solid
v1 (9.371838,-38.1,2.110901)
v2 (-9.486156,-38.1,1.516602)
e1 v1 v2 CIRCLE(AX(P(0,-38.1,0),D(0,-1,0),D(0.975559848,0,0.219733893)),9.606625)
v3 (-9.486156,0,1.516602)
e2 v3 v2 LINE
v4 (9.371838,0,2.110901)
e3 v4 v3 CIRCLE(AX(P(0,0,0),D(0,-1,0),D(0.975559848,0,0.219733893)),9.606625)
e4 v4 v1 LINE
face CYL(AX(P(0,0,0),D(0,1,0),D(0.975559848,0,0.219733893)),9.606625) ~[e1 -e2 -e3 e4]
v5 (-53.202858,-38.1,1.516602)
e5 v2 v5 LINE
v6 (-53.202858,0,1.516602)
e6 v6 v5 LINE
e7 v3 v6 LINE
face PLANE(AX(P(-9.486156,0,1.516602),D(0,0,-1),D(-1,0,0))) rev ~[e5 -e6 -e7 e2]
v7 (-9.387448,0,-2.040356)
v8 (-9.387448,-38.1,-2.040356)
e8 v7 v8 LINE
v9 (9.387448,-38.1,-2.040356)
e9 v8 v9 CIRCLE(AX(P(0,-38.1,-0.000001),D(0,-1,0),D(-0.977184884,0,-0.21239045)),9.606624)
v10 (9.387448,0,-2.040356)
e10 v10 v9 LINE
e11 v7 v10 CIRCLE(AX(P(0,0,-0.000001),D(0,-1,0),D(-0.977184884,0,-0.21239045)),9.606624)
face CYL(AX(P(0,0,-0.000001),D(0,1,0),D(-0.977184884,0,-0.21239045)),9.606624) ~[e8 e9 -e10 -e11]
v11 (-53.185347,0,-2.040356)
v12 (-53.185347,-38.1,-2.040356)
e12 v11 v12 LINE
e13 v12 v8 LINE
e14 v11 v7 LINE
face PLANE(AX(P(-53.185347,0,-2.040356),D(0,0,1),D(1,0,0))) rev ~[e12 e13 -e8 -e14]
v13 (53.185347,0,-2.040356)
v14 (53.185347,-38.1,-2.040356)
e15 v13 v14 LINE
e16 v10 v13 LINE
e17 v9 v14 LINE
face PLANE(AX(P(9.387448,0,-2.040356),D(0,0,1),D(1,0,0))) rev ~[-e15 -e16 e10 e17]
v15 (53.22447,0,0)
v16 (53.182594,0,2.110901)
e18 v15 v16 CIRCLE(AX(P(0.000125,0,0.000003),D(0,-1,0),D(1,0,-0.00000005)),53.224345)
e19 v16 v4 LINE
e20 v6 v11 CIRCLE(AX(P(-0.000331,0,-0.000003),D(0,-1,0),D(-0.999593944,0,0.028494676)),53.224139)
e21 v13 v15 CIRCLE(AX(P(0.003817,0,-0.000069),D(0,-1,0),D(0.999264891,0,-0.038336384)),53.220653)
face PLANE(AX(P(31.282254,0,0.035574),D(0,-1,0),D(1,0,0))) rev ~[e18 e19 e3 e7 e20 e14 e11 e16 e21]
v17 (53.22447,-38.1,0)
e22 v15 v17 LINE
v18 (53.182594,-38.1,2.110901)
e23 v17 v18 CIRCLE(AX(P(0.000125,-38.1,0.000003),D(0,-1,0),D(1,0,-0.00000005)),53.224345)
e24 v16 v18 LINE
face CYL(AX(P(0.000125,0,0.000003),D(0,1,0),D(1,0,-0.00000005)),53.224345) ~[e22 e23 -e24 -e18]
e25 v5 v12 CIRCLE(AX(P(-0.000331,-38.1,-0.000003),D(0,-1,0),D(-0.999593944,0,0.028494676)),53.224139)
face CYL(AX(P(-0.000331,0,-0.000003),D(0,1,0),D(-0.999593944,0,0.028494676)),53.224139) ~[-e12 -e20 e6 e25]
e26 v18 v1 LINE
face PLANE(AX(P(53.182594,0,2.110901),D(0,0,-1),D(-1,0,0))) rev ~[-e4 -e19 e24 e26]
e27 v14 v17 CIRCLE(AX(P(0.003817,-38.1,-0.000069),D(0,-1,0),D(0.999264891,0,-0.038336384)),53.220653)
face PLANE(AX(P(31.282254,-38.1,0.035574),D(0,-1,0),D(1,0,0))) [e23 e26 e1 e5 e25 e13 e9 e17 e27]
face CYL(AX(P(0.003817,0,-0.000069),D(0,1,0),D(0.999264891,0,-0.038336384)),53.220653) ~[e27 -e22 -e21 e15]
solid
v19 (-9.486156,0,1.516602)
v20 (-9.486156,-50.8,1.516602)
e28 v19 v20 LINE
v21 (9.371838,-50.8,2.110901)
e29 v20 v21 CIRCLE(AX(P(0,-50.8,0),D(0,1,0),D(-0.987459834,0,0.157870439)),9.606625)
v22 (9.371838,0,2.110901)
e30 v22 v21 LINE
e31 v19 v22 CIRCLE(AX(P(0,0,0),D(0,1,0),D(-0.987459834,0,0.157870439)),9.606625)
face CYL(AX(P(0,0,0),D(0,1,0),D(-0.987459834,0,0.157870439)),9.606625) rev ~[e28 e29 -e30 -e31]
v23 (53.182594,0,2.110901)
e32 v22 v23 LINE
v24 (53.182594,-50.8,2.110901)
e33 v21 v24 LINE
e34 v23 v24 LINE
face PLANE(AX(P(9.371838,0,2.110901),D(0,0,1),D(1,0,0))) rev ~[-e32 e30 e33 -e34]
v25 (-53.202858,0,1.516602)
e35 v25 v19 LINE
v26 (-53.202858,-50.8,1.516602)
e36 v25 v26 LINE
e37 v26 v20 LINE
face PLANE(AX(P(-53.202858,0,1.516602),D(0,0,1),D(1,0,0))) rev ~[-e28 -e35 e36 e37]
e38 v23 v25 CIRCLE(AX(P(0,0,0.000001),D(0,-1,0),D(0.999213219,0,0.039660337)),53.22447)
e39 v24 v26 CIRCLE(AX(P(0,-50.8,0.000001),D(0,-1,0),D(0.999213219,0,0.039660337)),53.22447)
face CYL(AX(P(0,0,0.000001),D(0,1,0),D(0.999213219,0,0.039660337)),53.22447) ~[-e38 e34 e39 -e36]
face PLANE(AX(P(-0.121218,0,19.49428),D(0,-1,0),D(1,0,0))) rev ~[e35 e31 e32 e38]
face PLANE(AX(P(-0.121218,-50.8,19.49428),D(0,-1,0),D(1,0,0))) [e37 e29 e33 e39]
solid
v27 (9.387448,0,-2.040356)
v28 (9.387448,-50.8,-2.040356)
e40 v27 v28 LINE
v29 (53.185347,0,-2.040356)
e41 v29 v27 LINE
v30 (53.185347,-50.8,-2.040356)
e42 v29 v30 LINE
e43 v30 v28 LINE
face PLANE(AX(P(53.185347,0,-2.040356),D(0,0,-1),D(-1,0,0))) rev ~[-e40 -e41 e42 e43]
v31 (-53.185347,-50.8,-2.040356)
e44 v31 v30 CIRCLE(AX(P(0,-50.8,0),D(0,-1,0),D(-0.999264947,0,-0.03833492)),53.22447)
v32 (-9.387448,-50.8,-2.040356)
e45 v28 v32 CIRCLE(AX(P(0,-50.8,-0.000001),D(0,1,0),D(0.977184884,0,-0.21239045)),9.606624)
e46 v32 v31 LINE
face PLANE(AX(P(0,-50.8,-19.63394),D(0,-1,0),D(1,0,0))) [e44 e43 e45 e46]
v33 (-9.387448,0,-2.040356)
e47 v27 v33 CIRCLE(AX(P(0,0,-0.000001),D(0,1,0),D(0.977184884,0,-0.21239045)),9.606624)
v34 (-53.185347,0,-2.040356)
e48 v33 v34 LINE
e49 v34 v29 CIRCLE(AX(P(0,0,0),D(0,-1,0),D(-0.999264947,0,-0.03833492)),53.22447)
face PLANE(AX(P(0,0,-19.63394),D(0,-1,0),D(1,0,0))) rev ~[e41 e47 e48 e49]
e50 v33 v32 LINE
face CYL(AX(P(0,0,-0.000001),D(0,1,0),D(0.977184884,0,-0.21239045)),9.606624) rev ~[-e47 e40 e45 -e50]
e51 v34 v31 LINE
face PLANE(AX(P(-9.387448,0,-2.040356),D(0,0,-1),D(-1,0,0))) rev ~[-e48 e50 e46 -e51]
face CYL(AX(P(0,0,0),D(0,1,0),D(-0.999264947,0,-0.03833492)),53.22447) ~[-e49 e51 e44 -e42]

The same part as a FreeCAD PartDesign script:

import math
import FreeCAD as App
import Part
import Sketcher
from FreeCAD import Vector
Q = App.Units.Quantity

doc = App.newDocument("Part")
params = doc.addObject("Spreadsheet::Sheet", "Params")
for row, (alias, value) in enumerate([
    ("pad1_length", "2 in"),
    ("pad2_length", "1.5 in"),
], start=1):
    params.set(f"A{row}", alias)
    params.set(f"B{row}", "=" + value)
    params.setAlias(f"B{row}", alias)

body = doc.addObject("PartDesign::Body", "Body")
body.AllowCompound = True

sketch1 = body.newObject("Sketcher::SketchObject", "Sketch")
sketch1.AttachmentSupport = (doc.getObject("XZ_Plane"), [""])
sketch1.MapMode = "FlatFace"
sketch1.addGeometry([
    Part.LineSegment(Vector(9, 2, 0), Vector(53, 2, 0)),
    Part.ArcOfCircle(Part.Circle(Vector(0, 0, 0), Vector(0, 0, 1), 53), math.radians(2), math.radians(178)),
    Part.LineSegment(Vector(-53, 2, 0), Vector(-9, 2, 0)),
    Part.ArcOfCircle(Part.Circle(Vector(0, 0, 0), Vector(0, 0, 1), 10), math.radians(13), math.radians(171)),
    Part.ArcOfCircle(Part.Circle(Vector(0, 0, 0), Vector(0, 0, 1), 53), math.radians(-178), math.radians(-2)),
    Part.LineSegment(Vector(53, -2, 0), Vector(9, -2, 0)),
    Part.ArcOfCircle(Part.Circle(Vector(0, 0, 0), Vector(0, 0, 1), 10), math.radians(-168), math.radians(-12)),
    Part.LineSegment(Vector(-9, -2, 0), Vector(-53, -2, 0)),
], False)
sketch1.addConstraint([
    Sketcher.Constraint("Coincident", 0, 2, 1, 1),
    Sketcher.Constraint("Coincident", 1, 2, 2, 1),
    Sketcher.Constraint("Coincident", 2, 2, 3, 2),
    Sketcher.Constraint("Coincident", 3, 1, 0, 1),
    Sketcher.Constraint("Coincident", 4, 2, 5, 1),
    Sketcher.Constraint("Coincident", 5, 2, 6, 2),
    Sketcher.Constraint("Coincident", 6, 1, 7, 1),
    Sketcher.Constraint("Coincident", 7, 2, 4, 1),
    Sketcher.Constraint("Horizontal", 0),
    Sketcher.Constraint("Horizontal", 2),
    Sketcher.Constraint("Horizontal", 5),
    Sketcher.Constraint("Horizontal", 7),
    Sketcher.Constraint("Coincident", 1, 3, -1, 1),
    Sketcher.Constraint("Coincident", 3, 3, -1, 1),
    Sketcher.Constraint("Coincident", 4, 3, -1, 1),
    Sketcher.Constraint("Coincident", 6, 3, -1, 1),
    Sketcher.Constraint("Equal", 1, 4),
    Sketcher.Constraint("Equal", 3, 6),
    Sketcher.Constraint("Horizontal", 5, 2, 6, 1),
    Sketcher.Constraint("Radius", 1, Q("53.22447 mm")),
    Sketcher.Constraint("DistanceX", 2, 1, 2, 2, Q("43.716702 mm")),
    Sketcher.Constraint("DistanceX", 5, 2, 5, 1, Q("43.797899 mm")),
    Sketcher.Constraint("Radius", 3, Q("9.606625 mm")),
    Sketcher.Constraint("DistanceY", -1, 1, 0, 2, Q("2.110901 mm")),
])
pad1 = body.newObject("PartDesign::Pad", "Pad")
pad1.Profile = sketch1
pad1.setExpression("Length", "Params.pad1_length")
body2 = doc.addObject("PartDesign::Body", "Body001")

sketch2 = body2.newObject("Sketcher::SketchObject", "Sketch001")
sketch2.AttachmentSupport = (doc.getObject("XZ_Plane001"), [""])
sketch2.MapMode = "FlatFace"
sketch2.addGeometry([
    Part.ArcOfCircle(Part.Circle(Vector(0.003817, -0.000069, 0), Vector(0, 0, 1), 53.220653), math.radians(-2.197051), math.radians(0.000074)),
    Part.ArcOfCircle(Part.Circle(Vector(0.000125, 0.000003, 0), Vector(0, 0, 1), 53.224345), math.radians(-0.000003), math.radians(2.272969)),
    Part.LineSegment(Vector(53.182594, 2.110901, 0), Vector(9.371838, 2.110901, 0)),
    Part.ArcOfCircle(Part.Circle(Vector(0, 0, 0), Vector(0, 0, 1), 9.606625), math.radians(12.693404), math.radians(170.91669)),
    Part.LineSegment(Vector(-9.486156, 1.516602, 0), Vector(-53.202858, 1.516602, 0)),
    Part.ArcOfCircle(Part.Circle(Vector(-0.000331, -0.000003, 0), Vector(0, 0, 1), 53.224139), math.radians(178.367154), math.radians(182.196978)),
    Part.LineSegment(Vector(-53.185347, -2.040356, 0), Vector(-9.387448, -2.040356, 0)),
    Part.ArcOfCircle(Part.Circle(Vector(0, -0.000001, 0), Vector(0, 0, 1), 9.606624), math.radians(-167.737524), math.radians(-12.262476)),
    Part.LineSegment(Vector(9.387448, -2.040356, 0), Vector(53.185347, -2.040356, 0)),
], False)
sketch2.addConstraint([
    Sketcher.Constraint("Coincident", 0, 2, 1, 1),
    Sketcher.Constraint("Coincident", 1, 2, 2, 1),
    Sketcher.Constraint("Coincident", 2, 2, 3, 1),
    Sketcher.Constraint("Coincident", 3, 2, 4, 1),
    Sketcher.Constraint("Coincident", 4, 2, 5, 1),
    Sketcher.Constraint("Coincident", 5, 2, 6, 1),
    Sketcher.Constraint("Coincident", 6, 2, 7, 1),
    Sketcher.Constraint("Coincident", 7, 2, 8, 1),
    Sketcher.Constraint("Coincident", 8, 2, 0, 1),
    Sketcher.Constraint("Horizontal", 2),
    Sketcher.Constraint("Horizontal", 4),
    Sketcher.Constraint("Horizontal", 6),
    Sketcher.Constraint("Horizontal", 8),
    Sketcher.Constraint("Coincident", 3, 3, -1, 1),
    Sketcher.Constraint("Coincident", 7, 3, -1, 1),
    Sketcher.Constraint("PointOnObject", 0, 2, -1),
    Sketcher.Constraint("Radius", 5, Q("53.224139 mm")),
    Sketcher.Constraint("DistanceX", 4, 2, 4, 1, Q("43.716702 mm")),
    Sketcher.Constraint("DistanceX", 6, 1, 6, 2, Q("43.797899 mm")),
    Sketcher.Constraint("DistanceX", 8, 1, 8, 2, Q("43.797899 mm")),
    Sketcher.Constraint("Radius", 0, Q("53.220653 mm")),
    Sketcher.Constraint("Radius", 1, Q("53.224345 mm")),
    Sketcher.Constraint("Radius", 3, Q("9.606625 mm")),
    Sketcher.Constraint("Radius", 7, Q("9.606624 mm")),
    Sketcher.Constraint("DistanceY", -1, 1, 1, 2, Q("2.110901 mm")),
    Sketcher.Constraint("DistanceY", -1, 1, 3, 2, Q("1.516602 mm")),
    Sketcher.Constraint("DistanceX", 5, 3, 0, 2, Q("53.224801 mm")),
    Sketcher.Constraint("DistanceY", 1, 3, 1, 2, Q("2.110898 mm")),
    Sketcher.Constraint("DistanceX", 2, 2, 2, 1, Q("43.810756 mm")),
    Sketcher.Constraint("DistanceY", 0, 3, 1, 2, Q("2.11097 mm")),
])
pad2 = body2.newObject("PartDesign::Pad", "Pad001")
pad2.Profile = sketch2
pad2.setExpression("Length", "Params.pad2_length")

doc.recompute()
